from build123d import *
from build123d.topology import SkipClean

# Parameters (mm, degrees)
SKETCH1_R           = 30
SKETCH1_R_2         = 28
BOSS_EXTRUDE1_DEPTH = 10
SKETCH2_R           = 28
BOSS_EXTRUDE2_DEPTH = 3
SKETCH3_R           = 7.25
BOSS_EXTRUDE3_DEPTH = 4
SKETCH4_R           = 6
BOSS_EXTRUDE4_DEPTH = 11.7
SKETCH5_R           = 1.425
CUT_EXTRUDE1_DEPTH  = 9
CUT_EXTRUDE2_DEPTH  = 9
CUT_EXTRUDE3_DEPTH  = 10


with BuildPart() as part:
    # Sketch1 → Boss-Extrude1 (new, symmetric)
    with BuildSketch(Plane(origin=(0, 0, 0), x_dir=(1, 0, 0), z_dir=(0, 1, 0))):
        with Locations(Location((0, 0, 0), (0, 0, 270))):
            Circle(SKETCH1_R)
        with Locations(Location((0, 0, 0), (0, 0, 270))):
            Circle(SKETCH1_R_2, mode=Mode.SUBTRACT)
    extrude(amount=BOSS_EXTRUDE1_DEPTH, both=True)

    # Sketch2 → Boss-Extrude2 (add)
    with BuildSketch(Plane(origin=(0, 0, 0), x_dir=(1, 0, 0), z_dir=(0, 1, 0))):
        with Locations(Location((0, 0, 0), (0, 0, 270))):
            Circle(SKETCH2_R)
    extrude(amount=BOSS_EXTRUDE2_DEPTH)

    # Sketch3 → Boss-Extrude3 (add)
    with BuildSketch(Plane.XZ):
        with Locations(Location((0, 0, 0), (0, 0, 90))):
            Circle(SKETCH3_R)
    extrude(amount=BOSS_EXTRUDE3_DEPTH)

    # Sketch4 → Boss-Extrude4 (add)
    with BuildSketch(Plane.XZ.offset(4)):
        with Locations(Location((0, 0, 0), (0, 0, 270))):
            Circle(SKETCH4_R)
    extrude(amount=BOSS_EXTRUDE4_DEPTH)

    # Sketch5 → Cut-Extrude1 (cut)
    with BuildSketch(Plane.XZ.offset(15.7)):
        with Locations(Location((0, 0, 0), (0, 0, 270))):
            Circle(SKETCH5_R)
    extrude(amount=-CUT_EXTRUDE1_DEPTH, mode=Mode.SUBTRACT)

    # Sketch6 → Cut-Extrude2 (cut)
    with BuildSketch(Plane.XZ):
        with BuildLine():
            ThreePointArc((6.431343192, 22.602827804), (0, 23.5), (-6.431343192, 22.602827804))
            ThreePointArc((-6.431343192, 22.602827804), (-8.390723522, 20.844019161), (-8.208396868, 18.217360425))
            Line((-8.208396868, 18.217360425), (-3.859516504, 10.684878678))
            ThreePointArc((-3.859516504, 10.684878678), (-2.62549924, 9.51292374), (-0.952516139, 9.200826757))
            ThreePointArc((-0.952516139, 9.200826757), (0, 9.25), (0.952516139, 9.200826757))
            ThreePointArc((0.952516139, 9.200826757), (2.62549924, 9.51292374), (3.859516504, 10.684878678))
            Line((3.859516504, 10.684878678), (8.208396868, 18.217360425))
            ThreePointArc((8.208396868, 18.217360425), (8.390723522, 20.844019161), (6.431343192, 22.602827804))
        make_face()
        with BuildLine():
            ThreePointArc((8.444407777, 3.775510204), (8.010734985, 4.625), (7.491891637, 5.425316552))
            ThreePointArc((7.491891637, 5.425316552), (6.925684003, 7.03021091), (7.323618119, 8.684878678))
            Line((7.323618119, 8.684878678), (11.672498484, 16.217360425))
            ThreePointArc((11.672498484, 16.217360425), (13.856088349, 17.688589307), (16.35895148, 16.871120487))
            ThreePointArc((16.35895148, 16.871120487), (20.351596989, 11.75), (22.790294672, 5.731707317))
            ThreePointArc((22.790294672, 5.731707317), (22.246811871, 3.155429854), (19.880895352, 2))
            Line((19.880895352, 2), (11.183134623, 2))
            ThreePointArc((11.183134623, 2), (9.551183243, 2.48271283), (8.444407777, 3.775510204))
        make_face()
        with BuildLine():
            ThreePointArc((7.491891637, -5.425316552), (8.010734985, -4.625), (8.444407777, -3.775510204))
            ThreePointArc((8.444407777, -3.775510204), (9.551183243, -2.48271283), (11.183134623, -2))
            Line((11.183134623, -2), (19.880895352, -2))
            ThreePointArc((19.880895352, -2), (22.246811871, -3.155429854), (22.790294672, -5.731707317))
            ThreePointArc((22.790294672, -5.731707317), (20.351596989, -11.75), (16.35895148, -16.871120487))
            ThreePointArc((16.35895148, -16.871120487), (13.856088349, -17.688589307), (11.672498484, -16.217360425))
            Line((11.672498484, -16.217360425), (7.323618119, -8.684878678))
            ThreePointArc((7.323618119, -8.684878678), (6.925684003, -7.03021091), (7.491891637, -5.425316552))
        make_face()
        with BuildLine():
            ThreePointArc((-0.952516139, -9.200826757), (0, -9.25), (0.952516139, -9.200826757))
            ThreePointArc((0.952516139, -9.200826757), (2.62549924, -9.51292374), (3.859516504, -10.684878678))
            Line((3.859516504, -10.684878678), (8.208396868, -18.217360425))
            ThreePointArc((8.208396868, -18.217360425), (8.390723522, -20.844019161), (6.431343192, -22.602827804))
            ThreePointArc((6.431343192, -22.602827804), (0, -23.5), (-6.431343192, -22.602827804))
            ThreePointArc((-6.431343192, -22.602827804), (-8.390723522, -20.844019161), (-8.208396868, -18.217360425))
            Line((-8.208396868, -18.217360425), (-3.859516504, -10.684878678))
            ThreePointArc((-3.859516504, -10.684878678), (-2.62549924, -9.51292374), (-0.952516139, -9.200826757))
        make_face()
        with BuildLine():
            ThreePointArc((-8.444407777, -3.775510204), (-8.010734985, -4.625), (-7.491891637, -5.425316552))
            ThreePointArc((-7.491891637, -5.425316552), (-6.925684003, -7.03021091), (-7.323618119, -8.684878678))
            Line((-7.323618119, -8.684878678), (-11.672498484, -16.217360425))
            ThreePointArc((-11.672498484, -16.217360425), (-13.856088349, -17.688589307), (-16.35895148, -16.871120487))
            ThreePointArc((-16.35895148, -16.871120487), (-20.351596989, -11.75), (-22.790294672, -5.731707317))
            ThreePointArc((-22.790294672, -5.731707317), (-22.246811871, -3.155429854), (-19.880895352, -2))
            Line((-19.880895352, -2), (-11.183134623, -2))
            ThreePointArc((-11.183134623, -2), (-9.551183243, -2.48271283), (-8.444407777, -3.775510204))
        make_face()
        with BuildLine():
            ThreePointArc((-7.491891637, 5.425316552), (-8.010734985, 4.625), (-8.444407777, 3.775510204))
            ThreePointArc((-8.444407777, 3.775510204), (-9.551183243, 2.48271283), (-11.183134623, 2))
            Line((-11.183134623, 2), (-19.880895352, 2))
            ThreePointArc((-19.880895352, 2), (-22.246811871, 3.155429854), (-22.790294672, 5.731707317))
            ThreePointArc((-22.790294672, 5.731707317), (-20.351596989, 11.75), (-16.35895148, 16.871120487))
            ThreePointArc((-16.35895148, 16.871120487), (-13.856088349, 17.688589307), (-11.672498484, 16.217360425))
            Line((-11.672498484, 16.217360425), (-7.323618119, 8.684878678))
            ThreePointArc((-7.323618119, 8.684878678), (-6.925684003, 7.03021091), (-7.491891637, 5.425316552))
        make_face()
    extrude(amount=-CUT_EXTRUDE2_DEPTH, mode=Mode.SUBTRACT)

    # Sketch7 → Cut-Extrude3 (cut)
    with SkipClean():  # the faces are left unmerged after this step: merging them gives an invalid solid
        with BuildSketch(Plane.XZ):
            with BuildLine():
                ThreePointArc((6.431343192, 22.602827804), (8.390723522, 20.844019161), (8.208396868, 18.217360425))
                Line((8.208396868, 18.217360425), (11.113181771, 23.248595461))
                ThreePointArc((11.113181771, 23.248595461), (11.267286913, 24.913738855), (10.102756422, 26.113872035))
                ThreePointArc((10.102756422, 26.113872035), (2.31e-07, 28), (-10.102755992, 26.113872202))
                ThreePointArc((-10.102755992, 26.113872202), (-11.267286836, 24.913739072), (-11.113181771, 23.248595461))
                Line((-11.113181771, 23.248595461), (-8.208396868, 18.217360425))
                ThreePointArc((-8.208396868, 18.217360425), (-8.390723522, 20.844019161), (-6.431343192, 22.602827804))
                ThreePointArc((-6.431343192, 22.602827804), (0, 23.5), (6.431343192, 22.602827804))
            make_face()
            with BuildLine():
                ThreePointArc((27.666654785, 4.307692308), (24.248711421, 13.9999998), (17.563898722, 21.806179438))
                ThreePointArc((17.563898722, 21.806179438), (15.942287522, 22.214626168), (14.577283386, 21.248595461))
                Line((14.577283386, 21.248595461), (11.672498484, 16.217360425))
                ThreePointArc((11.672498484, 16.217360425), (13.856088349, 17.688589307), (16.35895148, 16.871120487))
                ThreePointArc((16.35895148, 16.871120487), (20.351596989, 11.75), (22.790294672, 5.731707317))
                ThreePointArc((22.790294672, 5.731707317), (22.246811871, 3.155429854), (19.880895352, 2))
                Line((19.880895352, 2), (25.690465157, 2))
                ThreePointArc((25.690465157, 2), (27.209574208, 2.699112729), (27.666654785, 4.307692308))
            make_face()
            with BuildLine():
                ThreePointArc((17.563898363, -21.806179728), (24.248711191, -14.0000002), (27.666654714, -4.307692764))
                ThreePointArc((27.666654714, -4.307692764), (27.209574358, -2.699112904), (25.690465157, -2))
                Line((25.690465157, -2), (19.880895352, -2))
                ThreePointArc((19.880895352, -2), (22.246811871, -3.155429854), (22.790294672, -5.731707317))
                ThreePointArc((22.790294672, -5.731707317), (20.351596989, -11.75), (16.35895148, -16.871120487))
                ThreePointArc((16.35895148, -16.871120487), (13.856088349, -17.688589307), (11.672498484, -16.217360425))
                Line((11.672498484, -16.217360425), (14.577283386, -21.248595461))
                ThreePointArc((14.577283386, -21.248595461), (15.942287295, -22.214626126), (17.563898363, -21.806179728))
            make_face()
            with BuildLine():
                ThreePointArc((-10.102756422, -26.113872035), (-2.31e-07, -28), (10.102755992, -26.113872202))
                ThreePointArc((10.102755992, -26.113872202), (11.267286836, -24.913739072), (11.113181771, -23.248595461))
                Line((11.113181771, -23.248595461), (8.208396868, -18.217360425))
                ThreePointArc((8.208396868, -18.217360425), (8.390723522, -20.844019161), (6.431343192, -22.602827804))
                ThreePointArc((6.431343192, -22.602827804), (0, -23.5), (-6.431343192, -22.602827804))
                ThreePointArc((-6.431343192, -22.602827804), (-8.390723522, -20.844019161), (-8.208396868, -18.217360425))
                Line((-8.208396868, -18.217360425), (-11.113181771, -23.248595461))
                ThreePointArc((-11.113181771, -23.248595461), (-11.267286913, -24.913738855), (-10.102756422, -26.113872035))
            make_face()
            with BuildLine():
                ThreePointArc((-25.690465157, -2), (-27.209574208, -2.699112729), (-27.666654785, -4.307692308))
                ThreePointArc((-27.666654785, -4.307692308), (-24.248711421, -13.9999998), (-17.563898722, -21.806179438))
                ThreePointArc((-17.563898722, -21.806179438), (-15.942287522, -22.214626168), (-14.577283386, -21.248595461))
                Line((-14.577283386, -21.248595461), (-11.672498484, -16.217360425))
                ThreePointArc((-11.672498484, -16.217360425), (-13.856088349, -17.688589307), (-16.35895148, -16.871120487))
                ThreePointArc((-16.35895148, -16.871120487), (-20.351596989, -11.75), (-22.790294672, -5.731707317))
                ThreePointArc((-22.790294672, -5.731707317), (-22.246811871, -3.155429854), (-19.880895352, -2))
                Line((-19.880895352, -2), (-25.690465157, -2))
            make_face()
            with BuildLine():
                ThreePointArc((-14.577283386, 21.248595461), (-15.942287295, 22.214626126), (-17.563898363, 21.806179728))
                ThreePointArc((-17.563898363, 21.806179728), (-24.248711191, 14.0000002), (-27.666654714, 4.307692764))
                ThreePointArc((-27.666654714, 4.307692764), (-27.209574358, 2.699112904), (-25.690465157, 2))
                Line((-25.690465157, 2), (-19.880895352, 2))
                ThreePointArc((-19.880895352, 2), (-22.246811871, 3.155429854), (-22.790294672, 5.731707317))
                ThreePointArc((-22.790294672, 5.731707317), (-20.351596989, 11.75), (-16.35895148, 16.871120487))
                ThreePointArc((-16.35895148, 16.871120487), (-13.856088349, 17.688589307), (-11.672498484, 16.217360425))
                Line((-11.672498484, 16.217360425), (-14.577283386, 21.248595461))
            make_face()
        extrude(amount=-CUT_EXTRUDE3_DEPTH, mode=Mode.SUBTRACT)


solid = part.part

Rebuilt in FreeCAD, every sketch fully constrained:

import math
import FreeCAD as App
import Part
import Sketcher
Q = App.Units.Quantity

doc = App.newDocument("Part")
params = doc.addObject("Spreadsheet::Sheet", "Params")
for row, (alias, value) in enumerate([
    ("sketch1_diameter", "60 mm"),
    ("sketch1_diameter2", "56 mm"),
    ("pad1_length", "20 mm"),
    ("sketch2_diameter", "56 mm"),
    ("pad2_length", "3 mm"),
    ("sketch3_diameter", "14.5 mm"),
    ("pad3_length", "4 mm"),
    ("sketch4_diameter", "12 mm"),
    ("pad4_length", "11.7 mm"),
    ("sketch5_diameter", "2.85 mm"),
    ("pocket1_length", "9 mm"),
    ("sketch6_radius", "3 mm"),
    ("sketch6_radius2", "23.5 mm"),
    ("sketch6_radius3", "9.25 mm"),
    ("pocket2_length", "9 mm"),
    ("sketch7_radius", "3 mm"),
    ("sketch7_radius2", "2 mm"),
    ("sketch7_radius3", "28 mm"),
    ("sketch7_radius4", "23.5 mm"),
    ("pocket3_length", "10 mm"),
], start=1):
    params.set(f"A{row}", alias)
    params.set(f"B{row}", "=" + value)
    params.setAlias(f"B{row}", alias)

body = doc.addObject("PartDesign::Body", "Body")

# Sketch on XZ plane
sketch1 = body.newObject("Sketcher::SketchObject", "Sketch")
sketch1.AttachmentSupport = (doc.getObject("XZ_Plane"), [""])
sketch1.MapMode = "FlatFace"
sketch1.addGeometry([
    Part.Circle(App.Vector(0, 0, 0), App.Vector(0, 0, 1), 30),
    Part.Circle(App.Vector(0, 0, 0), App.Vector(0, 0, 1), 28),
], False)
sketch1.addConstraint([
    Sketcher.Constraint("Coincident", 0, 3, -1, 1),
    Sketcher.Constraint("Coincident", 1, 3, -1, 1),
    Sketcher.Constraint("Diameter", 0, Q("60 mm")),
    Sketcher.Constraint("Diameter", 1, Q("56 mm")),
])
sketch1.setExpression("Constraints[2]", "Params.sketch1_diameter")
sketch1.setExpression("Constraints[3]", "Params.sketch1_diameter2")
pad1 = body.newObject("PartDesign::Pad", "Pad")
pad1.Profile = sketch1
pad1.setExpression("Length", "Params.pad1_length")
pad1.Midplane = True

# Sketch on XZ plane
sketch2 = body.newObject("Sketcher::SketchObject", "Sketch001")
sketch2.AttachmentSupport = (doc.getObject("XZ_Plane"), [""])
sketch2.MapMode = "FlatFace"
sketch2.addGeometry(Part.Circle(App.Vector(0, 0, 0), App.Vector(0, 0, 1), 28), False)
sketch2.addConstraint([
    Sketcher.Constraint("Coincident", 0, 3, -1, 1),
    Sketcher.Constraint("Diameter", 0, Q("56 mm")),
])
sketch2.setExpression("Constraints[1]", "Params.sketch2_diameter")
pad2 = body.newObject("PartDesign::Pad", "Pad001")
pad2.Profile = sketch2
pad2.setExpression("Length", "Params.pad2_length")
pad2.Reversed = True

# Sketch on XZ plane
sketch3 = body.newObject("Sketcher::SketchObject", "Sketch002")
sketch3.AttachmentSupport = (doc.getObject("XZ_Plane"), [""])
sketch3.MapMode = "FlatFace"
sketch3.addGeometry(Part.Circle(App.Vector(0, 0, 0), App.Vector(0, 0, 1), 7), False)
sketch3.addConstraint([
    Sketcher.Constraint("Coincident", 0, 3, -1, 1),
    Sketcher.Constraint("Diameter", 0, Q("14.5 mm")),
])
sketch3.setExpression("Constraints[1]", "Params.sketch3_diameter")
pad3 = body.newObject("PartDesign::Pad", "Pad002")
pad3.Profile = sketch3
pad3.setExpression("Length", "Params.pad3_length")

# Sketch on XZ plane
sketch4 = body.newObject("Sketcher::SketchObject", "Sketch003")
sketch4.AttachmentSupport = (doc.getObject("XZ_Plane"), [""])
sketch4.MapMode = "FlatFace"
sketch4.AttachmentOffset = App.Placement(App.Vector(0, 0, 4), App.Rotation())
sketch4.addGeometry(Part.Circle(App.Vector(0, 0, 0), App.Vector(0, 0, 1), 6), False)
sketch4.addConstraint([
    Sketcher.Constraint("Coincident", 0, 3, -1, 1),
    Sketcher.Constraint("Diameter", 0, Q("12 mm")),
])
sketch4.setExpression("Constraints[1]", "Params.sketch4_diameter")
pad4 = body.newObject("PartDesign::Pad", "Pad003")
pad4.Profile = sketch4
pad4.setExpression("Length", "Params.pad4_length")

# Sketch on XZ plane
sketch5 = body.newObject("Sketcher::SketchObject", "Sketch004")
sketch5.AttachmentSupport = (doc.getObject("XZ_Plane"), [""])
sketch5.MapMode = "FlatFace"
sketch5.AttachmentOffset = App.Placement(App.Vector(0, 0, 15.7), App.Rotation())
sketch5.addGeometry(Part.Circle(App.Vector(0, 0, 0), App.Vector(0, 0, 1), 1.4), False)
sketch5.addConstraint([
    Sketcher.Constraint("Coincident", 0, 3, -1, 1),
    Sketcher.Constraint("Diameter", 0, Q("2.85 mm")),
])
sketch5.setExpression("Constraints[1]", "Params.sketch5_diameter")
pocket1 = body.newObject("PartDesign::Pocket", "Pocket")
pocket1.Profile = sketch5
pocket1.setExpression("Length", "Params.pocket1_length")

# Sketch on XZ plane
sketch6 = body.newObject("Sketcher::SketchObject", "Sketch005")
sketch6.AttachmentSupport = (doc.getObject("XZ_Plane"), [""])
sketch6.MapMode = "FlatFace"
sketch6.addGeometry([
    Part.ArcOfCircle(Part.Circle(App.Vector(0, 0, 0), App.Vector(0, 0, 1), 23.5), math.radians(74), math.radians(106)),  # 0
    Part.ArcOfCircle(Part.Circle(App.Vector(-5.6, 19.7, 0), App.Vector(0, 0, 1), 3), math.radians(106), math.radians(210)),  # 1
    Part.LineSegment(App.Vector(-8.2, 18.2, 0), App.Vector(-3.9, 10.7, 0)),  # 2
    Part.ArcOfCircle(Part.Circle(App.Vector(-1.3, 12.2, 0), App.Vector(0, 0, 1), 3), math.radians(-150), math.radians(-84)),  # 3
    Part.ArcOfCircle(Part.Circle(App.Vector(0, 0, 0), App.Vector(0, 0, 1), 9.3), math.radians(84.09), math.radians(95.91)),  # 4
    Part.ArcOfCircle(Part.Circle(App.Vector(1.3, 12.2, 0), App.Vector(0, 0, 1), 3), math.radians(-96), math.radians(-30)),  # 5
    Part.LineSegment(App.Vector(3.9, 10.7, 0), App.Vector(8.2, 18.2, 0)),  # 6
    Part.ArcOfCircle(Part.Circle(App.Vector(5.6, 19.7, 0), App.Vector(0, 0, 1), 3), math.radians(-30), math.radians(74)),  # 7
    Part.ArcOfCircle(Part.Circle(App.Vector(0, 0, 0), App.Vector(0, 0, 1), 9.2), math.radians(24.09), math.radians(35.91)),  # 8
    Part.ArcOfCircle(Part.Circle(App.Vector(11.2, 5, 0), App.Vector(0, 0, 1), 3), math.radians(-156), math.radians(-90)),  # 9
    Part.LineSegment(App.Vector(11.2, 2, 0), App.Vector(19.9, 2, 0)),  # 10
    Part.ArcOfCircle(Part.Circle(App.Vector(19.9, 5, 0), App.Vector(0, 0, 1), 3), math.radians(-90), math.radians(14)),  # 11
    Part.ArcOfCircle(Part.Circle(App.Vector(0, 0, 0), App.Vector(0, 0, 1), 23.5), math.radians(14), math.radians(46)),  # 12
    Part.ArcOfCircle(Part.Circle(App.Vector(14.3, 14.7, 0), App.Vector(0, 0, 1), 3), math.radians(46), math.radians(150)),  # 13
    Part.LineSegment(App.Vector(11.7, 16.2, 0), App.Vector(7.3, 8.7, 0)),  # 14
    Part.ArcOfCircle(Part.Circle(App.Vector(9.9, 7.2, 0), App.Vector(0, 0, 1), 3), math.radians(150), math.radians(216)),  # 15
    Part.ArcOfCircle(Part.Circle(App.Vector(0, 0, 0), App.Vector(0, 0, 1), 9.2), math.radians(-35.91), math.radians(-24.09)),  # 16
    Part.ArcOfCircle(Part.Circle(App.Vector(9.9, -7.2, 0), App.Vector(0, 0, 1), 3), math.radians(144), math.radians(210)),  # 17
    Part.LineSegment(App.Vector(7.3, -8.7, 0), App.Vector(11.7, -16.2, 0)),  # 18
    Part.ArcOfCircle(Part.Circle(App.Vector(14.3, -14.7, 0), App.Vector(0, 0, 1), 3), math.radians(-150), math.radians(-46)),  # 19
    Part.ArcOfCircle(Part.Circle(App.Vector(0, 0, 0), App.Vector(0, 0, 1), 23.5), math.radians(-46), math.radians(-14)),  # 20
    Part.ArcOfCircle(Part.Circle(App.Vector(19.9, -5, 0), App.Vector(0, 0, 1), 3), math.radians(-14), math.radians(90)),  # 21
    Part.LineSegment(App.Vector(19.9, -2, 0), App.Vector(11.2, -2, 0)),  # 22
    Part.ArcOfCircle(Part.Circle(App.Vector(11.2, -5, 0), App.Vector(0, 0, 1), 3), math.radians(90), math.radians(156)),  # 23
    Part.ArcOfCircle(Part.Circle(App.Vector(0, 0, 0), App.Vector(0, 0, 1), 9.3), math.radians(-95.91), math.radians(-84.09)),  # 24
    Part.ArcOfCircle(Part.Circle(App.Vector(-1.3, -12.2, 0), App.Vector(0, 0, 1), 3), math.radians(84), math.radians(150)),  # 25
    Part.LineSegment(App.Vector(-3.9, -10.7, 0), App.Vector(-8.2, -18.2, 0)),  # 26
    Part.ArcOfCircle(Part.Circle(App.Vector(-5.6, -19.7, 0), App.Vector(0, 0, 1), 3), math.radians(150), math.radians(254)),  # 27
    Part.ArcOfCircle(Part.Circle(App.Vector(0, 0, 0), App.Vector(0, 0, 1), 23.5), math.radians(-106), math.radians(-74)),  # 28
    Part.ArcOfCircle(Part.Circle(App.Vector(5.6, -19.7, 0), App.Vector(0, 0, 1), 3), math.radians(-74), math.radians(30)),  # 29
    Part.LineSegment(App.Vector(8.2, -18.2, 0), App.Vector(3.9, -10.7, 0)),  # 30
    Part.ArcOfCircle(Part.Circle(App.Vector(1.3, -12.2, 0), App.Vector(0, 0, 1), 3), math.radians(30), math.radians(96)),  # 31
    Part.ArcOfCircle(Part.Circle(App.Vector(0, 0, 0), App.Vector(0, 0, 1), 9.2), math.radians(-155.91), math.radians(-144.09)),  # 32
    Part.ArcOfCircle(Part.Circle(App.Vector(-11.2, -5, 0), App.Vector(0, 0, 1), 3), math.radians(24), math.radians(90)),  # 33
    Part.LineSegment(App.Vector(-11.2, -2, 0), App.Vector(-19.9, -2, 0)),  # 34
    Part.ArcOfCircle(Part.Circle(App.Vector(-19.9, -5, 0), App.Vector(0, 0, 1), 3), math.radians(90), math.radians(194)),  # 35
    Part.ArcOfCircle(Part.Circle(App.Vector(0, 0, 0), App.Vector(0, 0, 1), 23.5), math.radians(-166), math.radians(-134)),  # 36
    Part.ArcOfCircle(Part.Circle(App.Vector(-14.3, -14.7, 0), App.Vector(0, 0, 1), 3), math.radians(-134), math.radians(-30)),  # 37
    Part.LineSegment(App.Vector(-11.7, -16.2, 0), App.Vector(-7.3, -8.7, 0)),  # 38
    Part.ArcOfCircle(Part.Circle(App.Vector(-9.9, -7.2, 0), App.Vector(0, 0, 1), 3), math.radians(-30), math.radians(36)),  # 39
    Part.ArcOfCircle(Part.Circle(App.Vector(0, 0, 0), App.Vector(0, 0, 1), 9.2), math.radians(144.09), math.radians(155.91)),  # 40
    Part.ArcOfCircle(Part.Circle(App.Vector(-9.9, 7.2, 0), App.Vector(0, 0, 1), 3), math.radians(-36), math.radians(30)),  # 41
    Part.LineSegment(App.Vector(-7.3, 8.7, 0), App.Vector(-11.7, 16.2, 0)),  # 42
    Part.ArcOfCircle(Part.Circle(App.Vector(-14.3, 14.7, 0), App.Vector(0, 0, 1), 3), math.radians(30), math.radians(134)),  # 43
    Part.ArcOfCircle(Part.Circle(App.Vector(0, 0, 0), App.Vector(0, 0, 1), 23.5), math.radians(134), math.radians(166)),  # 44
    Part.ArcOfCircle(Part.Circle(App.Vector(-19.9, 5, 0), App.Vector(0, 0, 1), 3), math.radians(166), math.radians(270)),  # 45
    Part.LineSegment(App.Vector(-19.9, 2, 0), App.Vector(-11.2, 2, 0)),  # 46
    Part.ArcOfCircle(Part.Circle(App.Vector(-11.2, 5, 0), App.Vector(0, 0, 1), 3), math.radians(-90), math.radians(-24)),  # 47
], False)
sketch6.addConstraint([
    Sketcher.Constraint("Tangent", 0, 2, 1, 1),
    Sketcher.Constraint("Tangent", 1, 2, 2, 1),
    Sketcher.Constraint("Tangent", 2, 2, 3, 1),
    Sketcher.Constraint("Tangent", 3, 2, 4, 2),
    Sketcher.Constraint("Tangent", 4, 1, 5, 1),
    Sketcher.Constraint("Tangent", 5, 2, 6, 1),
    Sketcher.Constraint("Tangent", 6, 2, 7, 1),
    Sketcher.Constraint("Tangent", 7, 2, 0, 1),
    Sketcher.Constraint("Tangent", 8, 1, 9, 1),
    Sketcher.Constraint("Tangent", 9, 2, 10, 1),
    Sketcher.Constraint("Tangent", 10, 2, 11, 1),
    Sketcher.Constraint("Tangent", 11, 2, 12, 1),
    Sketcher.Constraint("Tangent", 12, 2, 13, 1),
    Sketcher.Constraint("Tangent", 13, 2, 14, 1),
    Sketcher.Constraint("Tangent", 14, 2, 15, 1),
    Sketcher.Constraint("Tangent", 15, 2, 8, 2),
    Sketcher.Constraint("Tangent", 16, 1, 17, 1),
    Sketcher.Constraint("Tangent", 17, 2, 18, 1),
    Sketcher.Constraint("Tangent", 18, 2, 19, 1),
    Sketcher.Constraint("Tangent", 19, 2, 20, 1),
    Sketcher.Constraint("Tangent", 20, 2, 21, 1),
    Sketcher.Constraint("Tangent", 21, 2, 22, 1),
    Sketcher.Constraint("Tangent", 22, 2, 23, 1),
    Sketcher.Constraint("Tangent", 23, 2, 16, 2),
    Sketcher.Constraint("Tangent", 24, 1, 25, 1),
    Sketcher.Constraint("Tangent", 25, 2, 26, 1),
    Sketcher.Constraint("Tangent", 26, 2, 27, 1),
    Sketcher.Constraint("Tangent", 27, 2, 28, 1),
    Sketcher.Constraint("Tangent", 28, 2, 29, 1),
    Sketcher.Constraint("Tangent", 29, 2, 30, 1),
    Sketcher.Constraint("Tangent", 30, 2, 31, 1),
    Sketcher.Constraint("Tangent", 31, 2, 24, 2),
    Sketcher.Constraint("Tangent", 32, 1, 33, 1),
    Sketcher.Constraint("Tangent", 33, 2, 34, 1),
    Sketcher.Constraint("Tangent", 34, 2, 35, 1),
    Sketcher.Constraint("Tangent", 35, 2, 36, 1),
    Sketcher.Constraint("Tangent", 36, 2, 37, 1),
    Sketcher.Constraint("Tangent", 37, 2, 38, 1),
    Sketcher.Constraint("Tangent", 38, 2, 39, 1),
    Sketcher.Constraint("Tangent", 39, 2, 32, 2),
    Sketcher.Constraint("Tangent", 40, 1, 41, 1),
    Sketcher.Constraint("Tangent", 41, 2, 42, 1),
    Sketcher.Constraint("Tangent", 42, 2, 43, 1),
    Sketcher.Constraint("Tangent", 43, 2, 44, 1),
    Sketcher.Constraint("Tangent", 44, 2, 45, 1),
    Sketcher.Constraint("Tangent", 45, 2, 46, 1),
    Sketcher.Constraint("Tangent", 46, 2, 47, 1),
    Sketcher.Constraint("Tangent", 47, 2, 40, 2),
    Sketcher.Constraint("Horizontal", 10),
    Sketcher.Constraint("Horizontal", 22),
    Sketcher.Constraint("Horizontal", 34),
    Sketcher.Constraint("Horizontal", 46),
    Sketcher.Constraint("Coincident", 0, 3, -1, 1),
    Sketcher.Constraint("Coincident", 4, 3, -1, 1),
    Sketcher.Constraint("Coincident", 8, 3, -1, 1),
    Sketcher.Constraint("Coincident", 12, 3, -1, 1),
    Sketcher.Constraint("Coincident", 16, 3, -1, 1),
    Sketcher.Constraint("Coincident", 20, 3, -1, 1),
    Sketcher.Constraint("Coincident", 24, 3, -1, 1),
    Sketcher.Constraint("Coincident", 28, 3, -1, 1),
    Sketcher.Constraint("Coincident", 32, 3, -1, 1),
    Sketcher.Constraint("Coincident", 36, 3, -1, 1),
    Sketcher.Constraint("Coincident", 40, 3, -1, 1),
    Sketcher.Constraint("Coincident", 44, 3, -1, 1),
    Sketcher.Constraint("Equal", 1, 3),
    Sketcher.Constraint("Equal", 3, 5),
    Sketcher.Constraint("Equal", 5, 7),
    Sketcher.Constraint("Equal", 4, 8),
    Sketcher.Constraint("Equal", 7, 9),
    Sketcher.Constraint("Equal", 9, 11),
    Sketcher.Constraint("Equal", 0, 12),
    Sketcher.Constraint("Equal", 11, 13),
    Sketcher.Constraint("Equal", 13, 15),
    Sketcher.Constraint("Equal", 8, 16),
    Sketcher.Constraint("Equal", 15, 17),
    Sketcher.Constraint("Equal", 17, 19),
    Sketcher.Constraint("Equal", 12, 20),
    Sketcher.Constraint("Equal", 19, 21),
    Sketcher.Constraint("Equal", 21, 23),
    Sketcher.Constraint("Equal", 16, 24),
    Sketcher.Constraint("Equal", 23, 25),
    Sketcher.Constraint("Equal", 25, 27),
    Sketcher.Constraint("Equal", 20, 28),
    Sketcher.Constraint("Equal", 27, 29),
    Sketcher.Constraint("Equal", 29, 31),
    Sketcher.Constraint("Equal", 24, 32),
    Sketcher.Constraint("Equal", 31, 33),
    Sketcher.Constraint("Equal", 33, 35),
    Sketcher.Constraint("Equal", 28, 36),
    Sketcher.Constraint("Equal", 35, 37),
    Sketcher.Constraint("Equal", 37, 39),
    Sketcher.Constraint("Equal", 32, 40),
    Sketcher.Constraint("Equal", 39, 41),
    Sketcher.Constraint("Equal", 41, 43),
    Sketcher.Constraint("Equal", 36, 44),
    Sketcher.Constraint("Equal", 43, 45),
    Sketcher.Constraint("Equal", 45, 47),
    Sketcher.Constraint("Symmetric", 5, 2, 25, 2, -1, 1),
    Sketcher.Constraint("Symmetric", 1, 2, 29, 2, -1, 1),
    Sketcher.Constraint("Symmetric", 13, 2, 37, 2, -1, 1),
    Sketcher.Constraint("Symmetric", 17, 2, 41, 2, -1, 1),
    Sketcher.Constraint("Symmetric", 2, 2, 5, 2, -2),
    Sketcher.Constraint("Symmetric", 18, 2, 37, 2, -2),
    Sketcher.Constraint("Parallel", 6, 14),
    Sketcher.Constraint("Horizontal", 23, 3, 33, 3),
    Sketcher.Constraint("Horizontal", 11, 3, 45, 3),
    Sketcher.Constraint("Vertical", 11, 3, 21, 3),
    Sketcher.Constraint("Equal", 6, 14),
    Sketcher.Constraint("Radius", 1, Q("3 mm")),
    Sketcher.Constraint("Radius", 0, Q("23.5 mm")),
    Sketcher.Constraint("Angle", 2, Q("-60 deg")),
    Sketcher.Constraint("Radius", 4, Q("9.25 mm")),
    Sketcher.Constraint("DistanceY", -1, 1, 9, 3, Q("5 mm")),
    Sketcher.Constraint("DistanceX", -1, 1, 13, 2, Q("11.672498 mm")),
])
sketch6.setExpression("Constraints[108]", "Params.sketch6_radius")
sketch6.setExpression("Constraints[109]", "Params.sketch6_radius2")
sketch6.setExpression("Constraints[111]", "Params.sketch6_radius3")
pocket2 = body.newObject("PartDesign::Pocket", "Pocket001")
pocket2.Profile = sketch6
pocket2.setExpression("Length", "Params.pocket2_length")

# Sketch on XZ plane
sketch7 = body.newObject("Sketcher::SketchObject", "Sketch006")
sketch7.AttachmentSupport = (doc.getObject("XZ_Plane"), [""])
sketch7.MapMode = "FlatFace"
sketch7.addGeometry([
    Part.ArcOfCircle(Part.Circle(App.Vector(5.6, 19.7, 0), App.Vector(0, 0, 1), 3), math.radians(-30), math.radians(74)),  # 0
    Part.LineSegment(App.Vector(8.2, 18.2, 0), App.Vector(11.1, 23.2, 0)),  # 1
    Part.ArcOfCircle(Part.Circle(App.Vector(9.4, 24.2, 0), App.Vector(0, 0, 1), 2), math.radians(-30), math.radians(69)),  # 2
    Part.ArcOfCircle(Part.Circle(App.Vector(0, 0, 0), App.Vector(0, 0, 1), 28), math.radians(69), math.radians(111)),  # 3
    Part.ArcOfCircle(Part.Circle(App.Vector(-9.4, 24.2, 0), App.Vector(0, 0, 1), 2), math.radians(111), math.radians(210)),  # 4
    Part.LineSegment(App.Vector(-11.1, 23.2, 0), App.Vector(-8.2, 18.2, 0)),  # 5
    Part.ArcOfCircle(Part.Circle(App.Vector(-5.6, 19.7, 0), App.Vector(0, 0, 1), 3), math.radians(106), math.radians(210)),  # 6
    Part.ArcOfCircle(Part.Circle(App.Vector(0, 0, 0), App.Vector(0, 0, 1), 23.5), math.radians(74), math.radians(106)),  # 7
    Part.ArcOfCircle(Part.Circle(App.Vector(0, 0, 0), App.Vector(0, 0, 1), 28), math.radians(9), math.radians(51)),  # 8
    Part.ArcOfCircle(Part.Circle(App.Vector(16.3, 20.2, 0), App.Vector(0, 0, 1), 2), math.radians(51), math.radians(150)),  # 9
    Part.LineSegment(App.Vector(14.6, 21.2, 0), App.Vector(11.7, 16.2, 0)),  # 10
    Part.ArcOfCircle(Part.Circle(App.Vector(14.3, 14.7, 0), App.Vector(0, 0, 1), 3), math.radians(46), math.radians(150)),  # 11
    Part.ArcOfCircle(Part.Circle(App.Vector(0, 0, 0), App.Vector(0, 0, 1), 23.5), math.radians(14), math.radians(46)),  # 12
    Part.ArcOfCircle(Part.Circle(App.Vector(19.9, 5, 0), App.Vector(0, 0, 1), 3), math.radians(-90), math.radians(14)),  # 13
    Part.LineSegment(App.Vector(19.9, 2, 0), App.Vector(25.7, 2, 0)),  # 14
    Part.ArcOfCircle(Part.Circle(App.Vector(25.7, 4, 0), App.Vector(0, 0, 1), 2), math.radians(-90), math.radians(9)),  # 15
    Part.ArcOfCircle(Part.Circle(App.Vector(0, 0, 0), App.Vector(0, 0, 1), 28), math.radians(-51), math.radians(-9)),  # 16
    Part.ArcOfCircle(Part.Circle(App.Vector(25.7, -4, 0), App.Vector(0, 0, 1), 2), math.radians(-9), math.radians(90)),  # 17
    Part.LineSegment(App.Vector(25.7, -2, 0), App.Vector(19.9, -2, 0)),  # 18
    Part.ArcOfCircle(Part.Circle(App.Vector(19.9, -5, 0), App.Vector(0, 0, 1), 3), math.radians(-14), math.radians(90)),  # 19
    Part.ArcOfCircle(Part.Circle(App.Vector(0, 0, 0), App.Vector(0, 0, 1), 23.5), math.radians(-46), math.radians(-14)),  # 20
    Part.ArcOfCircle(Part.Circle(App.Vector(14.3, -14.7, 0), App.Vector(0, 0, 1), 3), math.radians(-150), math.radians(-46)),  # 21
    Part.LineSegment(App.Vector(11.7, -16.2, 0), App.Vector(14.6, -21.2, 0)),  # 22
    Part.ArcOfCircle(Part.Circle(App.Vector(16.3, -20.2, 0), App.Vector(0, 0, 1), 2), math.radians(-150), math.radians(-51)),  # 23
    Part.ArcOfCircle(Part.Circle(App.Vector(0, 0, 0), App.Vector(0, 0, 1), 28), math.radians(-111), math.radians(-69)),  # 24
    Part.ArcOfCircle(Part.Circle(App.Vector(9.4, -24.2, 0), App.Vector(0, 0, 1), 2), math.radians(-69), math.radians(30)),  # 25
    Part.LineSegment(App.Vector(11.1, -23.2, 0), App.Vector(8.2, -18.2, 0)),  # 26
    Part.ArcOfCircle(Part.Circle(App.Vector(5.6, -19.7, 0), App.Vector(0, 0, 1), 3), math.radians(-74), math.radians(30)),  # 27
    Part.ArcOfCircle(Part.Circle(App.Vector(0, 0, 0), App.Vector(0, 0, 1), 23.5), math.radians(-106), math.radians(-74)),  # 28
    Part.ArcOfCircle(Part.Circle(App.Vector(-5.6, -19.7, 0), App.Vector(0, 0, 1), 3), math.radians(150), math.radians(254)),  # 29
    Part.LineSegment(App.Vector(-8.2, -18.2, 0), App.Vector(-11.1, -23.2, 0)),  # 30
    Part.ArcOfCircle(Part.Circle(App.Vector(-9.4, -24.2, 0), App.Vector(0, 0, 1), 2), math.radians(150), math.radians(249)),  # 31
    Part.ArcOfCircle(Part.Circle(App.Vector(-25.7, -4, 0), App.Vector(0, 0, 1), 2), math.radians(90), math.radians(189)),  # 32
    Part.ArcOfCircle(Part.Circle(App.Vector(0, 0, 0), App.Vector(0, 0, 1), 28), math.radians(-171), math.radians(-129)),  # 33
    Part.ArcOfCircle(Part.Circle(App.Vector(-16.3, -20.2, 0), App.Vector(0, 0, 1), 2), math.radians(-129), math.radians(-30)),  # 34
    Part.LineSegment(App.Vector(-14.6, -21.2, 0), App.Vector(-11.7, -16.2, 0)),  # 35
    Part.ArcOfCircle(Part.Circle(App.Vector(-14.3, -14.7, 0), App.Vector(0, 0, 1), 3), math.radians(-134), math.radians(-30)),  # 36
    Part.ArcOfCircle(Part.Circle(App.Vector(0, 0, 0), App.Vector(0, 0, 1), 23.5), math.radians(-166), math.radians(-134)),  # 37
    Part.ArcOfCircle(Part.Circle(App.Vector(-19.9, -5, 0), App.Vector(0, 0, 1), 3), math.radians(90), math.radians(194)),  # 38
    Part.LineSegment(App.Vector(-19.9, -2, 0), App.Vector(-25.7, -2, 0)),  # 39
    Part.ArcOfCircle(Part.Circle(App.Vector(-16.3, 20.2, 0), App.Vector(0, 0, 1), 2), math.radians(30), math.radians(129)),  # 40
    Part.ArcOfCircle(Part.Circle(App.Vector(0, 0, 0), App.Vector(0, 0, 1), 28), math.radians(129), math.radians(171)),  # 41
    Part.ArcOfCircle(Part.Circle(App.Vector(-25.7, 4, 0), App.Vector(0, 0, 1), 2), math.radians(171), math.radians(270)),  # 42
    Part.LineSegment(App.Vector(-25.7, 2, 0), App.Vector(-19.9, 2, 0)),  # 43
    Part.ArcOfCircle(Part.Circle(App.Vector(-19.9, 5, 0), App.Vector(0, 0, 1), 3), math.radians(166), math.radians(270)),  # 44
    Part.ArcOfCircle(Part.Circle(App.Vector(0, 0, 0), App.Vector(0, 0, 1), 23.5), math.radians(134), math.radians(166)),  # 45
    Part.ArcOfCircle(Part.Circle(App.Vector(-14.3, 14.7, 0), App.Vector(0, 0, 1), 3), math.radians(30), math.radians(134)),  # 46
    Part.LineSegment(App.Vector(-11.7, 16.2, 0), App.Vector(-14.6, 21.2, 0)),  # 47
], False)
sketch7.addConstraint([
    Sketcher.Constraint("Tangent", 0, 1, 1, 1),
    Sketcher.Constraint("Tangent", 1, 2, 2, 1),
    Sketcher.Constraint("Tangent", 2, 2, 3, 1),
    Sketcher.Constraint("Tangent", 3, 2, 4, 1),
    Sketcher.Constraint("Tangent", 4, 2, 5, 1),
    Sketcher.Constraint("Tangent", 5, 2, 6, 2),
    Sketcher.Constraint("Tangent", 6, 1, 7, 2),
    Sketcher.Constraint("Tangent", 7, 1, 0, 2),
    Sketcher.Constraint("Tangent", 8, 2, 9, 1),
    Sketcher.Constraint("Tangent", 9, 2, 10, 1),
    Sketcher.Constraint("Tangent", 10, 2, 11, 2),
    Sketcher.Constraint("Tangent", 11, 1, 12, 2),
    Sketcher.Constraint("Tangent", 12, 1, 13, 2),
    Sketcher.Constraint("Tangent", 13, 1, 14, 1),
    Sketcher.Constraint("Tangent", 14, 2, 15, 1),
    Sketcher.Constraint("Tangent", 15, 2, 8, 1),
    Sketcher.Constraint("Tangent", 16, 2, 17, 1),
    Sketcher.Constraint("Tangent", 17, 2, 18, 1),
    Sketcher.Constraint("Tangent", 18, 2, 19, 2),
    Sketcher.Constraint("Tangent", 19, 1, 20, 2),
    Sketcher.Constraint("Tangent", 20, 1, 21, 2),
    Sketcher.Constraint("Tangent", 21, 1, 22, 1),
    Sketcher.Constraint("Tangent", 22, 2, 23, 1),
    Sketcher.Constraint("Tangent", 23, 2, 16, 1),
    Sketcher.Constraint("Tangent", 24, 2, 25, 1),
    Sketcher.Constraint("Tangent", 25, 2, 26, 1),
    Sketcher.Constraint("Tangent", 26, 2, 27, 2),
    Sketcher.Constraint("Tangent", 27, 1, 28, 2),
    Sketcher.Constraint("Tangent", 28, 1, 29, 2),
    Sketcher.Constraint("Tangent", 29, 1, 30, 1),
    Sketcher.Constraint("Tangent", 30, 2, 31, 1),
    Sketcher.Constraint("Tangent", 31, 2, 24, 1),
    Sketcher.Constraint("Tangent", 32, 2, 33, 1),
    Sketcher.Constraint("Tangent", 33, 2, 34, 1),
    Sketcher.Constraint("Tangent", 34, 2, 35, 1),
    Sketcher.Constraint("Tangent", 35, 2, 36, 2),
    Sketcher.Constraint("Tangent", 36, 1, 37, 2),
    Sketcher.Constraint("Tangent", 37, 1, 38, 2),
    Sketcher.Constraint("Tangent", 38, 1, 39, 1),
    Sketcher.Constraint("Tangent", 39, 2, 32, 1),
    Sketcher.Constraint("Tangent", 40, 2, 41, 1),
    Sketcher.Constraint("Tangent", 41, 2, 42, 1),
    Sketcher.Constraint("Tangent", 42, 2, 43, 1),
    Sketcher.Constraint("Tangent", 43, 2, 44, 2),
    Sketcher.Constraint("Tangent", 44, 1, 45, 2),
    Sketcher.Constraint("Tangent", 45, 1, 46, 2),
    Sketcher.Constraint("Tangent", 46, 1, 47, 1),
    Sketcher.Constraint("Tangent", 47, 2, 40, 1),
    Sketcher.Constraint("Horizontal", 14),
    Sketcher.Constraint("Horizontal", 18),
    Sketcher.Constraint("Horizontal", 39),
    Sketcher.Constraint("Horizontal", 43),
    Sketcher.Constraint("Coincident", 3, 3, -1, 1),
    Sketcher.Constraint("Coincident", 7, 3, -1, 1),
    Sketcher.Constraint("Coincident", 8, 3, -1, 1),
    Sketcher.Constraint("Coincident", 12, 3, -1, 1),
    Sketcher.Constraint("Coincident", 16, 3, -1, 1),
    Sketcher.Constraint("Coincident", 20, 3, -1, 1),
    Sketcher.Constraint("Coincident", 24, 3, -1, 1),
    Sketcher.Constraint("Coincident", 28, 3, -1, 1),
    Sketcher.Constraint("Coincident", 33, 3, -1, 1),
    Sketcher.Constraint("Coincident", 37, 3, -1, 1),
    Sketcher.Constraint("Coincident", 41, 3, -1, 1),
    Sketcher.Constraint("Coincident", 45, 3, -1, 1),
    Sketcher.Constraint("Equal", 2, 4),
    Sketcher.Constraint("Equal", 0, 6),
    Sketcher.Constraint("Equal", 3, 8),
    Sketcher.Constraint("Equal", 4, 9),
    Sketcher.Constraint("Equal", 6, 11),
    Sketcher.Constraint("Equal", 7, 12),
    Sketcher.Constraint("Equal", 11, 13),
    Sketcher.Constraint("Equal", 9, 15),
    Sketcher.Constraint("Equal", 8, 16),
    Sketcher.Constraint("Equal", 15, 17),
    Sketcher.Constraint("Equal", 13, 19),
    Sketcher.Constraint("Equal", 12, 20),
    Sketcher.Constraint("Equal", 19, 21),
    Sketcher.Constraint("Equal", 17, 23),
    Sketcher.Constraint("Equal", 16, 24),
    Sketcher.Constraint("Equal", 23, 25),
    Sketcher.Constraint("Equal", 21, 27),
    Sketcher.Constraint("Equal", 20, 28),
    Sketcher.Constraint("Equal", 27, 29),
    Sketcher.Constraint("Equal", 25, 31),
    Sketcher.Constraint("Equal", 31, 32),
    Sketcher.Constraint("Equal", 24, 33),
    Sketcher.Constraint("Equal", 32, 34),
    Sketcher.Constraint("Equal", 29, 36),
    Sketcher.Constraint("Equal", 28, 37),
    Sketcher.Constraint("Equal", 36, 38),
    Sketcher.Constraint("Equal", 34, 40),
    Sketcher.Constraint("Equal", 33, 41),
    Sketcher.Constraint("Equal", 40, 42),
    Sketcher.Constraint("Equal", 38, 44),
    Sketcher.Constraint("Equal", 37, 45),
    Sketcher.Constraint("Equal", 44, 46),
    Sketcher.Constraint("Symmetric", 4, 2, 25, 2, -1, 1),
    Sketcher.Constraint("Symmetric", 0, 1, 29, 1, -1, 1),
    Sketcher.Constraint("Symmetric", 9, 2, 34, 2, -1, 1),
    Sketcher.Constraint("Symmetric", 21, 1, 46, 1, -1, 1),
    Sketcher.Constraint("Symmetric", 1, 2, 4, 2, -2),
    Sketcher.Constraint("Symmetric", 22, 2, 34, 2, -2),
    Sketcher.Constraint("Parallel", 1, 10),
    Sketcher.Constraint("Horizontal", 17, 3, 32, 3),
    Sketcher.Constraint("Horizontal", 15, 3, 42, 3),
    Sketcher.Constraint("Vertical", 15, 3, 17, 3),
    Sketcher.Constraint("Equal", 5, 10),
    Sketcher.Constraint("Radius", 0, Q("3 mm")),
    Sketcher.Constraint("Radius", 2, Q("2 mm")),
    Sketcher.Constraint("Radius", 3, Q("28 mm")),
    Sketcher.Constraint("Radius", 7, Q("23.5 mm")),
    Sketcher.Constraint("Angle", 1, Q("60 deg")),
    Sketcher.Constraint("DistanceY", -1, 1, 13, 3, Q("5 mm")),
    Sketcher.Constraint("DistanceX", -1, 1, 8, 2, Q("17.563899 mm")),
])
sketch7.setExpression("Constraints[107]", "Params.sketch7_radius")
sketch7.setExpression("Constraints[108]", "Params.sketch7_radius2")
sketch7.setExpression("Constraints[109]", "Params.sketch7_radius3")
sketch7.setExpression("Constraints[110]", "Params.sketch7_radius4")
pocket3 = body.newObject("PartDesign::Pocket", "Pocket002")
pocket3.Profile = sketch7
pocket3.setExpression("Length", "Params.pocket3_length")

doc.recompute()
